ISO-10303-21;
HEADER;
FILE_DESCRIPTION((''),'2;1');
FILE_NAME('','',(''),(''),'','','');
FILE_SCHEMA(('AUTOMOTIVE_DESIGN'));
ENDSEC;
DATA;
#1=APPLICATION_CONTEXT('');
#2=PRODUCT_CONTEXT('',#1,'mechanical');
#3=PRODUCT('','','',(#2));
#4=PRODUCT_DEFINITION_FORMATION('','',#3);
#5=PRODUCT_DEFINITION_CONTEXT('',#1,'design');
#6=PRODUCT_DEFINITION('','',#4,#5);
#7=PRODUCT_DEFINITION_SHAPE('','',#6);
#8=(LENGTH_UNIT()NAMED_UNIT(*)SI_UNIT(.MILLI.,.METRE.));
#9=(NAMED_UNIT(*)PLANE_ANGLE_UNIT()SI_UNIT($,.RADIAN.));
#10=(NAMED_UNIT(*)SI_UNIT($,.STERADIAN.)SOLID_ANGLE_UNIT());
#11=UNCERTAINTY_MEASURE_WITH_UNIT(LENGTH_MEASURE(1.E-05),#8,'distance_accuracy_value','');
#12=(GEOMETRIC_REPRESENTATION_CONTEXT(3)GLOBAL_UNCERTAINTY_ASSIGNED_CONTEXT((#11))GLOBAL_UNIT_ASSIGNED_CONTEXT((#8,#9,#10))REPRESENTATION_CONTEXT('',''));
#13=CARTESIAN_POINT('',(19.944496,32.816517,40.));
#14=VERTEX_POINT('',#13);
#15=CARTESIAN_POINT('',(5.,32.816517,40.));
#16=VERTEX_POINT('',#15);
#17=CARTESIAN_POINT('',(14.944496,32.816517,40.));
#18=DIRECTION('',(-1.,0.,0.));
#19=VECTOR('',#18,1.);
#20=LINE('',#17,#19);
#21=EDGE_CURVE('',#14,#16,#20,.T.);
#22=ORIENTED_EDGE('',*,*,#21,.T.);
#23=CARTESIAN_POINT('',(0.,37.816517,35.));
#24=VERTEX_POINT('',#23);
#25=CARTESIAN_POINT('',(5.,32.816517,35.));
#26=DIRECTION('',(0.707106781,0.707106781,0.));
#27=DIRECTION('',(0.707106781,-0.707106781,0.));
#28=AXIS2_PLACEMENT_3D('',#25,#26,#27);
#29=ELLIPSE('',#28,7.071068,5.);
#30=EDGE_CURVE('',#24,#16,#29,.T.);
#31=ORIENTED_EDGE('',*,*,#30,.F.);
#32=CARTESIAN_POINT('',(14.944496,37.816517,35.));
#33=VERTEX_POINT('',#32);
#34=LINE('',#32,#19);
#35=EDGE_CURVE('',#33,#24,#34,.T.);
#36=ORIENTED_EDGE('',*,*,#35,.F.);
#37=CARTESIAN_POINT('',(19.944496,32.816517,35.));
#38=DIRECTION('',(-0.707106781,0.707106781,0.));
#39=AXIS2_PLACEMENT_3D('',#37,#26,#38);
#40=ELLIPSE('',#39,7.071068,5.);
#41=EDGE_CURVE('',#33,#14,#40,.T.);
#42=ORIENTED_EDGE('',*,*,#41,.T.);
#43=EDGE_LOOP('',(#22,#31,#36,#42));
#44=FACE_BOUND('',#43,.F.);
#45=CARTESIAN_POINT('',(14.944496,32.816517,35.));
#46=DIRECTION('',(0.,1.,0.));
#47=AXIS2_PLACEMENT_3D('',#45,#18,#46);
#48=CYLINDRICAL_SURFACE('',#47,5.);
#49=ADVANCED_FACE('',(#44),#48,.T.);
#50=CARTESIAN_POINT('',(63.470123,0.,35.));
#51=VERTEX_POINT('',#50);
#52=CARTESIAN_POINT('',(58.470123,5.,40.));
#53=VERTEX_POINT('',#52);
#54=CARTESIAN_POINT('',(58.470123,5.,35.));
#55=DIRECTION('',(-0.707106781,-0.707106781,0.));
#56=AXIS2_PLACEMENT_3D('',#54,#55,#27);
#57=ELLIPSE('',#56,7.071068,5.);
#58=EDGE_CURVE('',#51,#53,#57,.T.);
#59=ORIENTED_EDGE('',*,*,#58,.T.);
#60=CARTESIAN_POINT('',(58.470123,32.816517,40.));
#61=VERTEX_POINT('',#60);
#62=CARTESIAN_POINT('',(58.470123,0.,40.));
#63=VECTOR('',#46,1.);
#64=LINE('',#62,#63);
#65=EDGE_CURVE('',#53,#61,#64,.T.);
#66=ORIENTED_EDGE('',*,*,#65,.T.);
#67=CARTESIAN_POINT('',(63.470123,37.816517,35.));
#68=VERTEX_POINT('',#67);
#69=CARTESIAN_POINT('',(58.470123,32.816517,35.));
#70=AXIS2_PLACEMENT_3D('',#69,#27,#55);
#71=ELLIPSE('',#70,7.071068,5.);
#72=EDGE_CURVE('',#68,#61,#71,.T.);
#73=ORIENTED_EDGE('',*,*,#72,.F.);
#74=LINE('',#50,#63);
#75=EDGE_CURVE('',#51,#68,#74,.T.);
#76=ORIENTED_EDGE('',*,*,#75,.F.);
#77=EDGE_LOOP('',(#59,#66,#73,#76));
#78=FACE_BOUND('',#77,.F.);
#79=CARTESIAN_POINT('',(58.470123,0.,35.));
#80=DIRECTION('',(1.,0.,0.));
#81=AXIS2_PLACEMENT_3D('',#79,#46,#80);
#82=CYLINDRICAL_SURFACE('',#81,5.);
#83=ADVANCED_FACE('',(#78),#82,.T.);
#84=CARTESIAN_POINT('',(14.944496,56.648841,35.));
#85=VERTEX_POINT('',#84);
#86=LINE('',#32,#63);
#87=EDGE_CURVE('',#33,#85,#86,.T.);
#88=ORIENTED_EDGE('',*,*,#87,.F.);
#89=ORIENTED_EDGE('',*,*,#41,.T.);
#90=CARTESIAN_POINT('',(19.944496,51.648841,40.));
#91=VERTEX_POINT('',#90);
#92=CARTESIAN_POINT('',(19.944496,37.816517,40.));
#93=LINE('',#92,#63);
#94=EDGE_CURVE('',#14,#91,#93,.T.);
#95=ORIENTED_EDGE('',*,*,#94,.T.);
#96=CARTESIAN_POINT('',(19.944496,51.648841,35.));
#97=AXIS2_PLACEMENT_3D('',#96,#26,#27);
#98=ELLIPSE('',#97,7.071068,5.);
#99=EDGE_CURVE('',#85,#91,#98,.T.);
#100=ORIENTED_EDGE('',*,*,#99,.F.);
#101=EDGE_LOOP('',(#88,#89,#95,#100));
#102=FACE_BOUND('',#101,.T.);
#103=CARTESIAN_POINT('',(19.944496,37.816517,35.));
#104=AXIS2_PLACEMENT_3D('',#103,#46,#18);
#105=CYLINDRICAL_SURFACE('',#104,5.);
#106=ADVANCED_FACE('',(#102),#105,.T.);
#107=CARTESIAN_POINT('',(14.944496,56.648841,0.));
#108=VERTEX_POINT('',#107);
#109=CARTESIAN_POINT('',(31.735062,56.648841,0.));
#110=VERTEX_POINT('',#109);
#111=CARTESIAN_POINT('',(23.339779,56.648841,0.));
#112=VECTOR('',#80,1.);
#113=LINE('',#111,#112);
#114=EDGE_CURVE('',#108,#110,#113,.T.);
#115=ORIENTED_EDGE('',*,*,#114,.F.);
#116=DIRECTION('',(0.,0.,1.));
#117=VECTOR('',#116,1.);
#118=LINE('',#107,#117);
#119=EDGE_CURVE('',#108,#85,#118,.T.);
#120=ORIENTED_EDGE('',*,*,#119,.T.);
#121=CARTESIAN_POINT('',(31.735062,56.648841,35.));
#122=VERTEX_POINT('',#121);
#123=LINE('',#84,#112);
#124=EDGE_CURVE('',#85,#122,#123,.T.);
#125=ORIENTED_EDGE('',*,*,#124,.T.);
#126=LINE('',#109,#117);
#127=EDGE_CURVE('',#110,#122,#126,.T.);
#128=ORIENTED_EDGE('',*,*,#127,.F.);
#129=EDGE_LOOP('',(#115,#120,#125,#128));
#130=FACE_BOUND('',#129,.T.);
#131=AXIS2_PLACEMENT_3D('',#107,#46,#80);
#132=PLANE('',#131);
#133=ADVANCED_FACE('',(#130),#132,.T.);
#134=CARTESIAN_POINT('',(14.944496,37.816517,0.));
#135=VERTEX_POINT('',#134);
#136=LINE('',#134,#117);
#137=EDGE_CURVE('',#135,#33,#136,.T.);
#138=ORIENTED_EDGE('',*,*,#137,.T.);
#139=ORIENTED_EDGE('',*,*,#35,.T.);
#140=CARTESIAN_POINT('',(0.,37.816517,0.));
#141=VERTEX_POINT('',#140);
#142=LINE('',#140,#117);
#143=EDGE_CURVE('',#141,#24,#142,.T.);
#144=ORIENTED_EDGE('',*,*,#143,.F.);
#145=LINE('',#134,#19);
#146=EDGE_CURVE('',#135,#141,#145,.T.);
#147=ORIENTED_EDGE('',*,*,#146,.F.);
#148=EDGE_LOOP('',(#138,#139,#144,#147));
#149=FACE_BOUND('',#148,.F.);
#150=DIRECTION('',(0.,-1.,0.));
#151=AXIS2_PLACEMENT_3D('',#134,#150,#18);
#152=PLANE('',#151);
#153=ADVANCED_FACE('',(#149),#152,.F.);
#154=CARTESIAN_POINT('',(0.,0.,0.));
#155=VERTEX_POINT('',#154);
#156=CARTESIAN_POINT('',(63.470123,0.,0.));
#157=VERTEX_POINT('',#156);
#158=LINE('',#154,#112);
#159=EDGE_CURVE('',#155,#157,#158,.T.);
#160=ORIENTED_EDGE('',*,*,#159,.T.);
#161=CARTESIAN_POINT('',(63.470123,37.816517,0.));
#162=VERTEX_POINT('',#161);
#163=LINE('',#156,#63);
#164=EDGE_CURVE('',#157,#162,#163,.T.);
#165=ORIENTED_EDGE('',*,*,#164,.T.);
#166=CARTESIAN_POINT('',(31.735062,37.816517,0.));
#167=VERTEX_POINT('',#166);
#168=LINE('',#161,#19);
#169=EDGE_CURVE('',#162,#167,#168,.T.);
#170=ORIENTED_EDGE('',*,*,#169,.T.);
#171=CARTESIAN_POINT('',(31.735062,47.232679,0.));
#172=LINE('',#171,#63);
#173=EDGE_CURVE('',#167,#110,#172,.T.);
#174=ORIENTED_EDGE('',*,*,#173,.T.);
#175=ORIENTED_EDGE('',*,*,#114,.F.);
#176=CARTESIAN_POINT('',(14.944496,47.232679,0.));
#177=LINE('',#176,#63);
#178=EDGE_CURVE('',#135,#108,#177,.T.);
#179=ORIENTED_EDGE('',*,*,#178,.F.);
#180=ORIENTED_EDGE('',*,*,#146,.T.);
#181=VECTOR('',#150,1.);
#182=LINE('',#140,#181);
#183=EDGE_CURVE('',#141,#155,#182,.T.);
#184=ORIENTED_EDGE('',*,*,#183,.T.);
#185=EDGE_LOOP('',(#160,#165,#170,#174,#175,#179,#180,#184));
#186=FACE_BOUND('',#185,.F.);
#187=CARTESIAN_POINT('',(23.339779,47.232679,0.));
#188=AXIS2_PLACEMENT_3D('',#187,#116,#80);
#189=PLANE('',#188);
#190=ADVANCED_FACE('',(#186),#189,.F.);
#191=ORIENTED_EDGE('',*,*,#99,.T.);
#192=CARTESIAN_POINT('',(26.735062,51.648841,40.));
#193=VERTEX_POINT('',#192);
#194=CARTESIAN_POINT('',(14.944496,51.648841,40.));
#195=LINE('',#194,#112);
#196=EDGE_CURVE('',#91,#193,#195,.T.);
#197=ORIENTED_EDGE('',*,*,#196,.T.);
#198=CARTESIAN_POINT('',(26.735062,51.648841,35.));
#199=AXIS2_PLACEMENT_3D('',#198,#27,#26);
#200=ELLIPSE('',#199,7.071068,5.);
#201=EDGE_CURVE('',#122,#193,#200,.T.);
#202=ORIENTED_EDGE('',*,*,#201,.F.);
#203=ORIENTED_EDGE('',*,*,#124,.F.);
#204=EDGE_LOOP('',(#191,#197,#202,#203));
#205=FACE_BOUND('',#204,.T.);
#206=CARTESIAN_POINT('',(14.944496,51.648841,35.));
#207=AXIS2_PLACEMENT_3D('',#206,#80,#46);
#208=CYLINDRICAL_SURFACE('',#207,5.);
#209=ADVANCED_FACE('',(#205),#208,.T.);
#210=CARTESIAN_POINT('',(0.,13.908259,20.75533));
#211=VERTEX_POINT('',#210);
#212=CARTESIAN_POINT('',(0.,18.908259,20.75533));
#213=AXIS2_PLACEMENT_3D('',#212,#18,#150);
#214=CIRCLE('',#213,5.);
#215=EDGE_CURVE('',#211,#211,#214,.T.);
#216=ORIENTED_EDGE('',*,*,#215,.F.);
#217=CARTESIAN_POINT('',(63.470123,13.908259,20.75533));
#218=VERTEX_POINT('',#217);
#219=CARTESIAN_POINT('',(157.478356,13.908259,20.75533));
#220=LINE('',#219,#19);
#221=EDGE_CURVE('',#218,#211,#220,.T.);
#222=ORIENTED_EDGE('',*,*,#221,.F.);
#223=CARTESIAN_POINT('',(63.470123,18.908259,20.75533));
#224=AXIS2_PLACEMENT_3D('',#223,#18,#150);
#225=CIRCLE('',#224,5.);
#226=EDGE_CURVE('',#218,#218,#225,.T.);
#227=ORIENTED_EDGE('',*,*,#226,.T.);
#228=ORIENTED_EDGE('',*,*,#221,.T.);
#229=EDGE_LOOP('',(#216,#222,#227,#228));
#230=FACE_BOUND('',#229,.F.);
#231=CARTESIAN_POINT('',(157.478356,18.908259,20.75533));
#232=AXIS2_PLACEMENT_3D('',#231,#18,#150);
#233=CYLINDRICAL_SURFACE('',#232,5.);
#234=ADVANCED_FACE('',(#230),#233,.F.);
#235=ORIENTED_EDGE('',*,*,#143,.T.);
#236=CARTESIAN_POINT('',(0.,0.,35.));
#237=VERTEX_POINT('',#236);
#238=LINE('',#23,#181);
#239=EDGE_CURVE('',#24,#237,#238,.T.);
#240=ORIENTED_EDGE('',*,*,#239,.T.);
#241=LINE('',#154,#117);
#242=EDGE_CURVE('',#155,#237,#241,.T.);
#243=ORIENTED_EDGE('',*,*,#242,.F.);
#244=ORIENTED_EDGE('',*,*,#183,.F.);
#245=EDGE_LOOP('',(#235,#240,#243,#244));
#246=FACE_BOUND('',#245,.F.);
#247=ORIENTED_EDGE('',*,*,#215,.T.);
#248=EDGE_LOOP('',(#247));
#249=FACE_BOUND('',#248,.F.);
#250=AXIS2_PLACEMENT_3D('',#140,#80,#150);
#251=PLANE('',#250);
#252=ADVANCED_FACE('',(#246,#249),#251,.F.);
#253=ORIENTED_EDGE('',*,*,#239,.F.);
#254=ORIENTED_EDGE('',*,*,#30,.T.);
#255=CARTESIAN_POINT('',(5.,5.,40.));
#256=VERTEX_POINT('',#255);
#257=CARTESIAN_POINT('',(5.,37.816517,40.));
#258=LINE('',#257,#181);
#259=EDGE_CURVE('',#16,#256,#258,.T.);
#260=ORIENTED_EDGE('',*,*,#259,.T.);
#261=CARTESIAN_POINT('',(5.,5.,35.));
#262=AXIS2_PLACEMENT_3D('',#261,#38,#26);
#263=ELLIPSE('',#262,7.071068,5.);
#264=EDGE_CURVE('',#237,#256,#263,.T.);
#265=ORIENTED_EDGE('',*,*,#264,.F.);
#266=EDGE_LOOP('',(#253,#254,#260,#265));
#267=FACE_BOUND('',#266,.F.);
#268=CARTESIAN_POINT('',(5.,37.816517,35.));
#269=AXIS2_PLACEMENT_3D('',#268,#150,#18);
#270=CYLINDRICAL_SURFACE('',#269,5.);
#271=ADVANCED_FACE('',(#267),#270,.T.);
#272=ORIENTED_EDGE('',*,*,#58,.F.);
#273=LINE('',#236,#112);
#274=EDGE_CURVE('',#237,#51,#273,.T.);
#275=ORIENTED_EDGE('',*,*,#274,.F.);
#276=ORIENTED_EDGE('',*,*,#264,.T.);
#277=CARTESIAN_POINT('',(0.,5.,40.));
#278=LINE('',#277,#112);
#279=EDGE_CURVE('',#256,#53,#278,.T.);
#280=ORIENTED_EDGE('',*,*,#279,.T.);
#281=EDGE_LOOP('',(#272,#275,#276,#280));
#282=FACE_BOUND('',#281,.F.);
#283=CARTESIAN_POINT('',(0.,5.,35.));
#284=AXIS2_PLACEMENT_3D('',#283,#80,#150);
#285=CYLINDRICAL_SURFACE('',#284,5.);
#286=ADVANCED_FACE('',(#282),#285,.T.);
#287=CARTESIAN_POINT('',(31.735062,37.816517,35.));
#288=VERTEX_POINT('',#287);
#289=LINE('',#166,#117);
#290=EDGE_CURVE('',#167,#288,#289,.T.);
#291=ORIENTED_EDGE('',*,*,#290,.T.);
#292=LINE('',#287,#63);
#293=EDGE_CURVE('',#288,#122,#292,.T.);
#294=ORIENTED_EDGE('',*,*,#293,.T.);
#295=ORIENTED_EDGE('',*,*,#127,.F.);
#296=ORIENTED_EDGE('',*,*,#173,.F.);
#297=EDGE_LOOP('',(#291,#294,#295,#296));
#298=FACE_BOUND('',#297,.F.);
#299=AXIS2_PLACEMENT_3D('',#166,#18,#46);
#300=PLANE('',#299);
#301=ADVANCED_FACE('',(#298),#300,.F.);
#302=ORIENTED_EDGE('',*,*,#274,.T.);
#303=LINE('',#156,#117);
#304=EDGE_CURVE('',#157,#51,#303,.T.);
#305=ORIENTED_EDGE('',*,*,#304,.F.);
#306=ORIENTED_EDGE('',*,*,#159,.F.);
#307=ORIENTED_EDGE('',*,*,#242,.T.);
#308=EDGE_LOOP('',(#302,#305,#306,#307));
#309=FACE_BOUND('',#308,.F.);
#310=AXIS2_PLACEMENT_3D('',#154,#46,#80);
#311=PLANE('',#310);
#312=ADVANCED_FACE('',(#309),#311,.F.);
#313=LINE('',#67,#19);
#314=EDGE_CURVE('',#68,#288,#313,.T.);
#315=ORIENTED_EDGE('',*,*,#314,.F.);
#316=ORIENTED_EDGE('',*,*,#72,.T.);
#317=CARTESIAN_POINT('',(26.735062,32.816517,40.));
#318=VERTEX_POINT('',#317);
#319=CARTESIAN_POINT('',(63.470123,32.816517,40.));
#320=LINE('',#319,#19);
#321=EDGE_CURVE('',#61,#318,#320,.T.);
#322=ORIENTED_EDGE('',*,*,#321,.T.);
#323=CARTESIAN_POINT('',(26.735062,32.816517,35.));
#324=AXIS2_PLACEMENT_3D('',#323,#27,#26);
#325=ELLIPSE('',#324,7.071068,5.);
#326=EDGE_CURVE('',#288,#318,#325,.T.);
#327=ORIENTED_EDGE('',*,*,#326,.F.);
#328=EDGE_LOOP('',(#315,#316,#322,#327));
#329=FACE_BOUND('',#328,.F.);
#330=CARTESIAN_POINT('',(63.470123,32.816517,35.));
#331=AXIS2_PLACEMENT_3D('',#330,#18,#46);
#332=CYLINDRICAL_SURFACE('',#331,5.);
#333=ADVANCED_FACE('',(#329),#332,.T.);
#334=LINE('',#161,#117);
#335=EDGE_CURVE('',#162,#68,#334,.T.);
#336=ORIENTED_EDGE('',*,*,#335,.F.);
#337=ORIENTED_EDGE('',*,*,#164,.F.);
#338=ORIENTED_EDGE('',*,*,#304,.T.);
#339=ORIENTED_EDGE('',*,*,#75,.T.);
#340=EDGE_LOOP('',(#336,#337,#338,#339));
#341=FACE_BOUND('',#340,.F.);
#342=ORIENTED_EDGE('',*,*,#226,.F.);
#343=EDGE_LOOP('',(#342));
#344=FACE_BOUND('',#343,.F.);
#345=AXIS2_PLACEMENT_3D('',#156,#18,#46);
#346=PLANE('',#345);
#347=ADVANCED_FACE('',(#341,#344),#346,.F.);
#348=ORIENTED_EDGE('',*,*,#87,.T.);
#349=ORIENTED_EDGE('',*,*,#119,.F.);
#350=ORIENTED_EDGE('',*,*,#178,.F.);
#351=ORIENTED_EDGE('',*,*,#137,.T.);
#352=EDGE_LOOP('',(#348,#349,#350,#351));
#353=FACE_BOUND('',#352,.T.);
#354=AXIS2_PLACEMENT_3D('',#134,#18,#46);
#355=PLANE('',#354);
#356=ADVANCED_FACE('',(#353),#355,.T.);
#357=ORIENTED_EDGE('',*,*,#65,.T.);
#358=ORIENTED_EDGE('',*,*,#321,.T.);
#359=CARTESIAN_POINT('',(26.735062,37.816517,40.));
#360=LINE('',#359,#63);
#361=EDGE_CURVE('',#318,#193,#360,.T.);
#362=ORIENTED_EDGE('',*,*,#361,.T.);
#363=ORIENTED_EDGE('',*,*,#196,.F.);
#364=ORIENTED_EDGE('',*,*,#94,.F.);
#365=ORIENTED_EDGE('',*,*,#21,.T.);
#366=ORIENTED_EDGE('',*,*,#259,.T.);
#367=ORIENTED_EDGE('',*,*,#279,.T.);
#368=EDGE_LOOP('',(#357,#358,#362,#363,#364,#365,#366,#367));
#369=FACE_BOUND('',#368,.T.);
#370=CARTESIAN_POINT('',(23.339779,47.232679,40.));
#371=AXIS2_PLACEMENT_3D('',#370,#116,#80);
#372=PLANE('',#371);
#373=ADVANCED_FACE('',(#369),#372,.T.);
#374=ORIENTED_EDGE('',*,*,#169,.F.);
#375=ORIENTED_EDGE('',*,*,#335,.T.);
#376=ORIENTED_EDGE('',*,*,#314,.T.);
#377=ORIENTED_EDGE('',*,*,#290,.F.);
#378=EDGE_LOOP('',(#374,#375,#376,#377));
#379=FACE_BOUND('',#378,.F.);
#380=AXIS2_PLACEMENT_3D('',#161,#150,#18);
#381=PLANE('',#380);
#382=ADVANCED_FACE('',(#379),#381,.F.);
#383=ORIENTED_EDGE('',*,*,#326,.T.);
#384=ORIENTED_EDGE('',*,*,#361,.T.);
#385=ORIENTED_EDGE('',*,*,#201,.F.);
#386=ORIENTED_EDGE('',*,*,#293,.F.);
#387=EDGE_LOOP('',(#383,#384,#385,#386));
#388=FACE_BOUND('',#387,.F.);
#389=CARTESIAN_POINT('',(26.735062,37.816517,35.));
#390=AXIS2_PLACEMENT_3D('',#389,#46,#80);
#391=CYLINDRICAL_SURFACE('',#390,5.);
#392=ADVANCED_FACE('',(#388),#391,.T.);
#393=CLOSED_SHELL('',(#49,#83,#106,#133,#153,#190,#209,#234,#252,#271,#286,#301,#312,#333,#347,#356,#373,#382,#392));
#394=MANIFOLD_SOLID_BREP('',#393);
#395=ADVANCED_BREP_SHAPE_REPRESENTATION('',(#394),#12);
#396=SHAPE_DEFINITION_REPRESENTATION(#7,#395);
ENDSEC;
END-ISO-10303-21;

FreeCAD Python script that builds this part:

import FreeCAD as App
import Part
import Sketcher

V = App.Vector


def edges_at(feature, points):
    """Names of the edges that pass closest to the given points."""
    edges = feature.Shape.Edges
    near = lambda p: min(range(len(edges)), key=lambda i: edges[i].distToShape(Part.Vertex(*p))[0])
    return sorted({f"Edge{near(p) + 1}" for p in points})


def add_polygon(sketch, points):
    """Adds a closed chain of lines whose ends are joined by coincident constraints."""
    first, n = sketch.GeometryCount, len(points)
    for a, b in zip(points, points[1:] + points[:1]):
        sketch.addGeometry(Part.LineSegment(App.Vector(*a, 0), App.Vector(*b, 0)), False)
    for i in range(n):
        sketch.addConstraint(Sketcher.Constraint("Coincident", first + i, 2, first + (i + 1) % n, 1))

doc = App.newDocument("Part")
body = doc.addObject("PartDesign::Body", "Body")

# Sketch on XY plane
sketch1 = body.newObject("Sketcher::SketchObject", "Sketch")
sketch1.AttachmentSupport = (doc.getObject("XY_Plane"), [""])
sketch1.MapMode = "FlatFace"
add_polygon(sketch1, [(15, 57), (15, 38), (0, 38), (0, 0), (63, 0), (63, 38), (32, 38), (32, 57)])  # lines 0-7
sketch1.addConstraint([
    Sketcher.Constraint("Vertical", 0),
    Sketcher.Constraint("Horizontal", 1),
    Sketcher.Constraint("Vertical", 2),
    Sketcher.Constraint("Horizontal", 3),
    Sketcher.Constraint("Vertical", 4),
    Sketcher.Constraint("Horizontal", 5),
    Sketcher.Constraint("Vertical", 6),
    Sketcher.Constraint("Horizontal", 7),
    Sketcher.Constraint("Coincident", 2, 2, -1, 1),
    Sketcher.Constraint("Horizontal", 1, 2, 4, 2),
    Sketcher.Constraint("DistanceX", 5, 2, 5, 1, 31.735062),
    Sketcher.Constraint("DistanceX", 1, 2, 1, 1, 14.944496),
    Sketcher.Constraint("DistanceX", 3, 1, 3, 2, 63.470123),
    Sketcher.Constraint("DistanceY", 0, 2, 0, 1, 18.832324),
    Sketcher.Constraint("DistanceY", 2, 2, 2, 1, 37.816517),
])
pad1 = body.newObject("PartDesign::Pad", "Pad")
pad1.Profile = sketch1
pad1.Length = 40
doc.recompute()

fillet = body.newObject("PartDesign::Fillet", "Fillet")
fillet.Base = (pad1, edges_at(pad1, [
    (31.735, 47.233, 40),
    (23.34, 56.649, 40),
    (31.735, 0, 40),
    (0, 18.908, 40),
    (47.603, 37.817, 40),
    (63.47, 18.908, 40),
    (14.944, 47.233, 40),
    (7.472, 37.817, 40),
]))
fillet.Radius = 5

# Sketch on YZ plane
sketch2 = body.newObject("Sketcher::SketchObject", "Sketch001")
sketch2.AttachmentSupport = (doc.getObject("YZ_Plane"), [""])
sketch2.MapMode = "FlatFace"
sketch2.AttachmentOffset = App.Placement(V(0, 0, 63.470123), App.Rotation())
sketch2.addGeometry(Part.Circle(V(19, 21, 0), V(0, 0, 1), 5), False)
sketch2.addConstraint([
    Sketcher.Constraint("Diameter", 0, 10.0),
    Sketcher.Constraint("DistanceX", -1, 1, 0, 3, 18.908259),
    Sketcher.Constraint("DistanceY", -1, 1, 0, 3, 20.75533),
])
doc.recompute()
hole = body.newObject("PartDesign::Hole", "Hole")
hole.Profile = sketch2
hole.ThreadType = "None"
hole.Diameter = 10
hole.DepthType = "ThroughAll"

doc.recompute()
